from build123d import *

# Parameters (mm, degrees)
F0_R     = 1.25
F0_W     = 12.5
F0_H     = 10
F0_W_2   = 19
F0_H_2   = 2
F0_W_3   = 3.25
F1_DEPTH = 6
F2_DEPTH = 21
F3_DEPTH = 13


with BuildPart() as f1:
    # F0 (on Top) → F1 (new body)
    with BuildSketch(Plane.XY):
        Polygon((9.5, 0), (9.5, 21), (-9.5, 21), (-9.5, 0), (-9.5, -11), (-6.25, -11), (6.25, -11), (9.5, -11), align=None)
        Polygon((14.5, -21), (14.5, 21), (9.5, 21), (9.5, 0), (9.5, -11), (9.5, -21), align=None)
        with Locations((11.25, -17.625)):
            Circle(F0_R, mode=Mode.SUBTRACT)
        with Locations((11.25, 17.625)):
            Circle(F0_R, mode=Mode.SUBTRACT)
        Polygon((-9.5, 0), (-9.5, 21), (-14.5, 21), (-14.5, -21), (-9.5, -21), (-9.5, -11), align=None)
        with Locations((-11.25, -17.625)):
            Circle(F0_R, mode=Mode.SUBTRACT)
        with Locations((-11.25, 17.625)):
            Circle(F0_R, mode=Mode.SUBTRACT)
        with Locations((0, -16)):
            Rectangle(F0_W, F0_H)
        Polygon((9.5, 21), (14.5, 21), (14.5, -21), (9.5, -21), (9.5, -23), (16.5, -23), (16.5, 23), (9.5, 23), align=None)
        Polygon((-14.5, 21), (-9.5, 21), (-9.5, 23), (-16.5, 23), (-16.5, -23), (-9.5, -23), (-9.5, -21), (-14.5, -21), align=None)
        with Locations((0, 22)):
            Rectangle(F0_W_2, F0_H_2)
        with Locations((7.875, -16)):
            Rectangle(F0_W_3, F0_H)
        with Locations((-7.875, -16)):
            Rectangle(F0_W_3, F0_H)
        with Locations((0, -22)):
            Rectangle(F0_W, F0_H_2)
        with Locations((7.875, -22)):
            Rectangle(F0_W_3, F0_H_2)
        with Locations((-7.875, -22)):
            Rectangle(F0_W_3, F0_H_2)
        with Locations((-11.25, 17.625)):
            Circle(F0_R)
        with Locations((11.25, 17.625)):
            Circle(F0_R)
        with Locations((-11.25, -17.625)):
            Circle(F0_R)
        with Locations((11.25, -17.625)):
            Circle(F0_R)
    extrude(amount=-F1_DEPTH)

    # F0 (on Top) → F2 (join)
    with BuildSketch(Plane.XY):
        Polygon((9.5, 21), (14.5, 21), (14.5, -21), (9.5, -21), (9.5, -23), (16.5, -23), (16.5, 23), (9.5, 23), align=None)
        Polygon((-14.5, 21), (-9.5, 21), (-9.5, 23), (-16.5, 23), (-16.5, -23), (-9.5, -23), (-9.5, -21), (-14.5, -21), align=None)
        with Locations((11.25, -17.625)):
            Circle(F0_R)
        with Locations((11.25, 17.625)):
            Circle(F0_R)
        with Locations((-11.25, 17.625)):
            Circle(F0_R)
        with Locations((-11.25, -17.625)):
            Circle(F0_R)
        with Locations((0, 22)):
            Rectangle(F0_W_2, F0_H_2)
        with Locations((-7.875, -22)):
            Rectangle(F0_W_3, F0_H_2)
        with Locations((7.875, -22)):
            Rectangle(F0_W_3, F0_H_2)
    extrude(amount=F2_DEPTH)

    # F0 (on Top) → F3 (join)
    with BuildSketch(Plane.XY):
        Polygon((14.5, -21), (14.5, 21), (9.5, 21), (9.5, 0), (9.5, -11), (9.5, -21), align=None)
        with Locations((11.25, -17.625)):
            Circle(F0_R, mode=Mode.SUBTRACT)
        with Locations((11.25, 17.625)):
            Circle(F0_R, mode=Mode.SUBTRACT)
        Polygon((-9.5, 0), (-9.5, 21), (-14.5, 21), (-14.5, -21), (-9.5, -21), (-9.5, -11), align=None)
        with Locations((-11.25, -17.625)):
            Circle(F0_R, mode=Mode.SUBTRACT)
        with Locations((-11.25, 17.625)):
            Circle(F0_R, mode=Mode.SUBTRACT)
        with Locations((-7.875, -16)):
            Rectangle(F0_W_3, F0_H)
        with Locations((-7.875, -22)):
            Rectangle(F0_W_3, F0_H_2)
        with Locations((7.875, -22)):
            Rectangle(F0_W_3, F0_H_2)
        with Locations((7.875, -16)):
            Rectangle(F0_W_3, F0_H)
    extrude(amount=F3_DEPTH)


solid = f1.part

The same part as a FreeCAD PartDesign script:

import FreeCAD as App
import Part
import Sketcher

V = App.Vector
Q = App.Units.Quantity


def add_polygon(sketch, points):
    """Adds a closed chain of lines whose ends are joined by coincident constraints."""
    first, n = sketch.GeometryCount, len(points)
    for a, b in zip(points, points[1:] + points[:1]):
        sketch.addGeometry(Part.LineSegment(App.Vector(*a, 0), App.Vector(*b, 0)), False)
    for i in range(n):
        sketch.addConstraint(Sketcher.Constraint("Coincident", first + i, 2, first + (i + 1) % n, 1))

doc = App.newDocument("Part")
body = doc.addObject("PartDesign::Body", "Body")

sketch1 = body.newObject("Sketcher::SketchObject", "Sketch")
sketch1.AttachmentSupport = (doc.getObject("XY_Plane"), [""])
sketch1.MapMode = "FlatFace"
add_polygon(sketch1, [(-16, 23), (-16, -23), (16, -23), (16, 23)])
sketch1.addConstraint([
    Sketcher.Constraint("Vertical", 0),
    Sketcher.Constraint("Horizontal", 1),
    Sketcher.Constraint("Vertical", 2),
    Sketcher.Constraint("Horizontal", 3),
    Sketcher.Constraint("Symmetric", 0, 2, 2, 2, -1, 1),
    Sketcher.Constraint("DistanceX", 1, 1, 1, 2, Q("33 mm")),
    Sketcher.Constraint("DistanceY", 0, 2, 0, 1, Q("46 mm")),
])
pad1 = body.newObject("PartDesign::Pad", "Pad")
pad1.Profile = sketch1
pad1.Length = 6
pad1.Reversed = True

sketch2 = body.newObject("Sketcher::SketchObject", "Sketch001")
sketch2.AttachmentSupport = (doc.getObject("XY_Plane"), [""])
sketch2.MapMode = "FlatFace"
add_polygon(sketch2, [(14.5, 21), (14.5, -21), (6.2, -21), (6.2, -23), (16.5, -23), (16.5, 23), (-16.5, 23), (-16.5, -23), (-6.2, -23), (-6.2, -21), (-14.5, -21), (-14.5, 21)])
sketch2.addGeometry(Part.Circle(V(11.2, -17.6, 0), V(0, 0, 1), 1.2), False)
sketch2.addGeometry(Part.Circle(V(11.2, 17.6, 0), V(0, 0, 1), 1.2), False)
sketch2.addGeometry(Part.Circle(V(-11.2, 17.6, 0), V(0, 0, 1), 1.2), False)
sketch2.addGeometry(Part.Circle(V(-11.2, -17.6, 0), V(0, 0, 1), 1.2), False)
sketch2.addConstraint([
    Sketcher.Constraint("Vertical", 0),
    Sketcher.Constraint("Horizontal", 1),
    Sketcher.Constraint("Vertical", 2),
    Sketcher.Constraint("Horizontal", 3),
    Sketcher.Constraint("Vertical", 4),
    Sketcher.Constraint("Horizontal", 5),
    Sketcher.Constraint("Vertical", 6),
    Sketcher.Constraint("Horizontal", 7),
    Sketcher.Constraint("Vertical", 8),
    Sketcher.Constraint("Horizontal", 9),
    Sketcher.Constraint("Vertical", 10),
    Sketcher.Constraint("Horizontal", 11),
    Sketcher.Constraint("Equal", 12, 13),
    Sketcher.Constraint("Equal", 13, 14),
    Sketcher.Constraint("Equal", 14, 15),
    Sketcher.Constraint("Symmetric", 12, 3, 14, 3, -1, 1),
    Sketcher.Constraint("Symmetric", 13, 3, 15, 3, -1, 1),
    Sketcher.Constraint("Symmetric", 3, 2, 5, 2, -1, 1),
    Sketcher.Constraint("Symmetric", 0, 2, 10, 2, -1, 1),
    Sketcher.Constraint("Symmetric", 13, 3, 14, 3, -2),
    Sketcher.Constraint("Symmetric", 2, 2, 7, 2, -2),
    Sketcher.Constraint("Horizontal", 1, 2, 8, 2),
    Sketcher.Constraint("Diameter", 12, Q("2.5 mm")),
    Sketcher.Constraint("DistanceX", 5, 2, 5, 1, Q("33 mm")),
    Sketcher.Constraint("DistanceX", 11, 1, 11, 2, Q("29 mm")),
    Sketcher.Constraint("DistanceY", 0, 2, 0, 1, Q("42 mm")),
    Sketcher.Constraint("DistanceY", 2, 2, 2, 1, Q("2 mm")),
    Sketcher.Constraint("DistanceX", 1, 2, 12, 3, Q("5 mm")),
    Sketcher.Constraint("DistanceX", 1, 2, 1, 1, Q("8.25 mm")),
    Sketcher.Constraint("DistanceY", 12, 3, 13, 3, Q("35.25 mm")),
])
pad2 = body.newObject("PartDesign::Pad", "Pad001")
pad2.Profile = sketch2
pad2.Length = 21

sketch3 = body.newObject("Sketcher::SketchObject", "Sketch002")
sketch3.AttachmentSupport = (doc.getObject("XY_Plane"), [""])
sketch3.MapMode = "FlatFace"
add_polygon(sketch3, [(14.5, -21), (14.5, 21), (9.5, 21), (9.5, -11), (6.2, -11), (6.2, -23), (9.5, -23), (9.5, -21)])
sketch3.addGeometry(Part.Circle(V(11.2, -17.6, 0), V(0, 0, 1), 1.2), False)
sketch3.addGeometry(Part.Circle(V(11.2, 17.6, 0), V(0, 0, 1), 1.2), False)
add_polygon(sketch3, [(-9.5, 21), (-14.5, 21), (-14.5, -21), (-9.5, -21), (-9.5, -23), (-6.2, -23), (-6.2, -11), (-9.5, -11)])
sketch3.addGeometry(Part.Circle(V(-11.2, -17.6, 0), V(0, 0, 1), 1.2), False)
sketch3.addGeometry(Part.Circle(V(-11.2, 17.6, 0), V(0, 0, 1), 1.2), False)
sketch3.addConstraint([
    Sketcher.Constraint("Vertical", 0),
    Sketcher.Constraint("Horizontal", 1),
    Sketcher.Constraint("Vertical", 2),
    Sketcher.Constraint("Horizontal", 3),
    Sketcher.Constraint("Vertical", 4),
    Sketcher.Constraint("Horizontal", 5),
    Sketcher.Constraint("Vertical", 6),
    Sketcher.Constraint("Horizontal", 7),
    Sketcher.Constraint("Horizontal", 10),
    Sketcher.Constraint("Vertical", 11),
    Sketcher.Constraint("Horizontal", 12),
    Sketcher.Constraint("Vertical", 13),
    Sketcher.Constraint("Horizontal", 14),
    Sketcher.Constraint("Vertical", 15),
    Sketcher.Constraint("Horizontal", 16),
    Sketcher.Constraint("Vertical", 17),
    Sketcher.Constraint("Equal", 8, 9),
    Sketcher.Constraint("Equal", 9, 18),
    Sketcher.Constraint("Equal", 18, 19),
    Sketcher.Constraint("Symmetric", 9, 3, 18, 3, -1, 1),
    Sketcher.Constraint("Symmetric", 8, 3, 19, 3, -1, 1),
    Sketcher.Constraint("Symmetric", 7, 2, 10, 2, -1, 1),
    Sketcher.Constraint("Symmetric", 1, 2, 12, 2, -1, 1),
    Sketcher.Constraint("Symmetric", 8, 3, 18, 3, -2),
    Sketcher.Constraint("Symmetric", 6, 2, 12, 2, -2),
    Sketcher.Constraint("Symmetric", 4, 2, 14, 2, -2),
    Sketcher.Constraint("Symmetric", 2, 2, 16, 2, -2),
    Sketcher.Constraint("Diameter", 8, Q("2.5 mm")),
    Sketcher.Constraint("DistanceX", 1, 2, 1, 1, Q("5 mm")),
    Sketcher.Constraint("DistanceY", 0, 1, 0, 2, Q("42 mm")),
    Sketcher.Constraint("DistanceY", 2, 2, 2, 1, Q("32 mm")),
    Sketcher.Constraint("DistanceY", 4, 2, 4, 1, Q("12 mm")),
    Sketcher.Constraint("DistanceX", 3, 2, 8, 3, Q("5 mm")),
    Sketcher.Constraint("DistanceX", 10, 2, 1, 2, Q("24 mm")),
    Sketcher.Constraint("DistanceX", 3, 2, 3, 1, Q("3.25 mm")),
    Sketcher.Constraint("DistanceY", 8, 3, 9, 3, Q("35.25 mm")),
])
pad3 = body.newObject("PartDesign::Pad", "Pad002")
pad3.Profile = sketch3
pad3.Length = 13

doc.recompute()
